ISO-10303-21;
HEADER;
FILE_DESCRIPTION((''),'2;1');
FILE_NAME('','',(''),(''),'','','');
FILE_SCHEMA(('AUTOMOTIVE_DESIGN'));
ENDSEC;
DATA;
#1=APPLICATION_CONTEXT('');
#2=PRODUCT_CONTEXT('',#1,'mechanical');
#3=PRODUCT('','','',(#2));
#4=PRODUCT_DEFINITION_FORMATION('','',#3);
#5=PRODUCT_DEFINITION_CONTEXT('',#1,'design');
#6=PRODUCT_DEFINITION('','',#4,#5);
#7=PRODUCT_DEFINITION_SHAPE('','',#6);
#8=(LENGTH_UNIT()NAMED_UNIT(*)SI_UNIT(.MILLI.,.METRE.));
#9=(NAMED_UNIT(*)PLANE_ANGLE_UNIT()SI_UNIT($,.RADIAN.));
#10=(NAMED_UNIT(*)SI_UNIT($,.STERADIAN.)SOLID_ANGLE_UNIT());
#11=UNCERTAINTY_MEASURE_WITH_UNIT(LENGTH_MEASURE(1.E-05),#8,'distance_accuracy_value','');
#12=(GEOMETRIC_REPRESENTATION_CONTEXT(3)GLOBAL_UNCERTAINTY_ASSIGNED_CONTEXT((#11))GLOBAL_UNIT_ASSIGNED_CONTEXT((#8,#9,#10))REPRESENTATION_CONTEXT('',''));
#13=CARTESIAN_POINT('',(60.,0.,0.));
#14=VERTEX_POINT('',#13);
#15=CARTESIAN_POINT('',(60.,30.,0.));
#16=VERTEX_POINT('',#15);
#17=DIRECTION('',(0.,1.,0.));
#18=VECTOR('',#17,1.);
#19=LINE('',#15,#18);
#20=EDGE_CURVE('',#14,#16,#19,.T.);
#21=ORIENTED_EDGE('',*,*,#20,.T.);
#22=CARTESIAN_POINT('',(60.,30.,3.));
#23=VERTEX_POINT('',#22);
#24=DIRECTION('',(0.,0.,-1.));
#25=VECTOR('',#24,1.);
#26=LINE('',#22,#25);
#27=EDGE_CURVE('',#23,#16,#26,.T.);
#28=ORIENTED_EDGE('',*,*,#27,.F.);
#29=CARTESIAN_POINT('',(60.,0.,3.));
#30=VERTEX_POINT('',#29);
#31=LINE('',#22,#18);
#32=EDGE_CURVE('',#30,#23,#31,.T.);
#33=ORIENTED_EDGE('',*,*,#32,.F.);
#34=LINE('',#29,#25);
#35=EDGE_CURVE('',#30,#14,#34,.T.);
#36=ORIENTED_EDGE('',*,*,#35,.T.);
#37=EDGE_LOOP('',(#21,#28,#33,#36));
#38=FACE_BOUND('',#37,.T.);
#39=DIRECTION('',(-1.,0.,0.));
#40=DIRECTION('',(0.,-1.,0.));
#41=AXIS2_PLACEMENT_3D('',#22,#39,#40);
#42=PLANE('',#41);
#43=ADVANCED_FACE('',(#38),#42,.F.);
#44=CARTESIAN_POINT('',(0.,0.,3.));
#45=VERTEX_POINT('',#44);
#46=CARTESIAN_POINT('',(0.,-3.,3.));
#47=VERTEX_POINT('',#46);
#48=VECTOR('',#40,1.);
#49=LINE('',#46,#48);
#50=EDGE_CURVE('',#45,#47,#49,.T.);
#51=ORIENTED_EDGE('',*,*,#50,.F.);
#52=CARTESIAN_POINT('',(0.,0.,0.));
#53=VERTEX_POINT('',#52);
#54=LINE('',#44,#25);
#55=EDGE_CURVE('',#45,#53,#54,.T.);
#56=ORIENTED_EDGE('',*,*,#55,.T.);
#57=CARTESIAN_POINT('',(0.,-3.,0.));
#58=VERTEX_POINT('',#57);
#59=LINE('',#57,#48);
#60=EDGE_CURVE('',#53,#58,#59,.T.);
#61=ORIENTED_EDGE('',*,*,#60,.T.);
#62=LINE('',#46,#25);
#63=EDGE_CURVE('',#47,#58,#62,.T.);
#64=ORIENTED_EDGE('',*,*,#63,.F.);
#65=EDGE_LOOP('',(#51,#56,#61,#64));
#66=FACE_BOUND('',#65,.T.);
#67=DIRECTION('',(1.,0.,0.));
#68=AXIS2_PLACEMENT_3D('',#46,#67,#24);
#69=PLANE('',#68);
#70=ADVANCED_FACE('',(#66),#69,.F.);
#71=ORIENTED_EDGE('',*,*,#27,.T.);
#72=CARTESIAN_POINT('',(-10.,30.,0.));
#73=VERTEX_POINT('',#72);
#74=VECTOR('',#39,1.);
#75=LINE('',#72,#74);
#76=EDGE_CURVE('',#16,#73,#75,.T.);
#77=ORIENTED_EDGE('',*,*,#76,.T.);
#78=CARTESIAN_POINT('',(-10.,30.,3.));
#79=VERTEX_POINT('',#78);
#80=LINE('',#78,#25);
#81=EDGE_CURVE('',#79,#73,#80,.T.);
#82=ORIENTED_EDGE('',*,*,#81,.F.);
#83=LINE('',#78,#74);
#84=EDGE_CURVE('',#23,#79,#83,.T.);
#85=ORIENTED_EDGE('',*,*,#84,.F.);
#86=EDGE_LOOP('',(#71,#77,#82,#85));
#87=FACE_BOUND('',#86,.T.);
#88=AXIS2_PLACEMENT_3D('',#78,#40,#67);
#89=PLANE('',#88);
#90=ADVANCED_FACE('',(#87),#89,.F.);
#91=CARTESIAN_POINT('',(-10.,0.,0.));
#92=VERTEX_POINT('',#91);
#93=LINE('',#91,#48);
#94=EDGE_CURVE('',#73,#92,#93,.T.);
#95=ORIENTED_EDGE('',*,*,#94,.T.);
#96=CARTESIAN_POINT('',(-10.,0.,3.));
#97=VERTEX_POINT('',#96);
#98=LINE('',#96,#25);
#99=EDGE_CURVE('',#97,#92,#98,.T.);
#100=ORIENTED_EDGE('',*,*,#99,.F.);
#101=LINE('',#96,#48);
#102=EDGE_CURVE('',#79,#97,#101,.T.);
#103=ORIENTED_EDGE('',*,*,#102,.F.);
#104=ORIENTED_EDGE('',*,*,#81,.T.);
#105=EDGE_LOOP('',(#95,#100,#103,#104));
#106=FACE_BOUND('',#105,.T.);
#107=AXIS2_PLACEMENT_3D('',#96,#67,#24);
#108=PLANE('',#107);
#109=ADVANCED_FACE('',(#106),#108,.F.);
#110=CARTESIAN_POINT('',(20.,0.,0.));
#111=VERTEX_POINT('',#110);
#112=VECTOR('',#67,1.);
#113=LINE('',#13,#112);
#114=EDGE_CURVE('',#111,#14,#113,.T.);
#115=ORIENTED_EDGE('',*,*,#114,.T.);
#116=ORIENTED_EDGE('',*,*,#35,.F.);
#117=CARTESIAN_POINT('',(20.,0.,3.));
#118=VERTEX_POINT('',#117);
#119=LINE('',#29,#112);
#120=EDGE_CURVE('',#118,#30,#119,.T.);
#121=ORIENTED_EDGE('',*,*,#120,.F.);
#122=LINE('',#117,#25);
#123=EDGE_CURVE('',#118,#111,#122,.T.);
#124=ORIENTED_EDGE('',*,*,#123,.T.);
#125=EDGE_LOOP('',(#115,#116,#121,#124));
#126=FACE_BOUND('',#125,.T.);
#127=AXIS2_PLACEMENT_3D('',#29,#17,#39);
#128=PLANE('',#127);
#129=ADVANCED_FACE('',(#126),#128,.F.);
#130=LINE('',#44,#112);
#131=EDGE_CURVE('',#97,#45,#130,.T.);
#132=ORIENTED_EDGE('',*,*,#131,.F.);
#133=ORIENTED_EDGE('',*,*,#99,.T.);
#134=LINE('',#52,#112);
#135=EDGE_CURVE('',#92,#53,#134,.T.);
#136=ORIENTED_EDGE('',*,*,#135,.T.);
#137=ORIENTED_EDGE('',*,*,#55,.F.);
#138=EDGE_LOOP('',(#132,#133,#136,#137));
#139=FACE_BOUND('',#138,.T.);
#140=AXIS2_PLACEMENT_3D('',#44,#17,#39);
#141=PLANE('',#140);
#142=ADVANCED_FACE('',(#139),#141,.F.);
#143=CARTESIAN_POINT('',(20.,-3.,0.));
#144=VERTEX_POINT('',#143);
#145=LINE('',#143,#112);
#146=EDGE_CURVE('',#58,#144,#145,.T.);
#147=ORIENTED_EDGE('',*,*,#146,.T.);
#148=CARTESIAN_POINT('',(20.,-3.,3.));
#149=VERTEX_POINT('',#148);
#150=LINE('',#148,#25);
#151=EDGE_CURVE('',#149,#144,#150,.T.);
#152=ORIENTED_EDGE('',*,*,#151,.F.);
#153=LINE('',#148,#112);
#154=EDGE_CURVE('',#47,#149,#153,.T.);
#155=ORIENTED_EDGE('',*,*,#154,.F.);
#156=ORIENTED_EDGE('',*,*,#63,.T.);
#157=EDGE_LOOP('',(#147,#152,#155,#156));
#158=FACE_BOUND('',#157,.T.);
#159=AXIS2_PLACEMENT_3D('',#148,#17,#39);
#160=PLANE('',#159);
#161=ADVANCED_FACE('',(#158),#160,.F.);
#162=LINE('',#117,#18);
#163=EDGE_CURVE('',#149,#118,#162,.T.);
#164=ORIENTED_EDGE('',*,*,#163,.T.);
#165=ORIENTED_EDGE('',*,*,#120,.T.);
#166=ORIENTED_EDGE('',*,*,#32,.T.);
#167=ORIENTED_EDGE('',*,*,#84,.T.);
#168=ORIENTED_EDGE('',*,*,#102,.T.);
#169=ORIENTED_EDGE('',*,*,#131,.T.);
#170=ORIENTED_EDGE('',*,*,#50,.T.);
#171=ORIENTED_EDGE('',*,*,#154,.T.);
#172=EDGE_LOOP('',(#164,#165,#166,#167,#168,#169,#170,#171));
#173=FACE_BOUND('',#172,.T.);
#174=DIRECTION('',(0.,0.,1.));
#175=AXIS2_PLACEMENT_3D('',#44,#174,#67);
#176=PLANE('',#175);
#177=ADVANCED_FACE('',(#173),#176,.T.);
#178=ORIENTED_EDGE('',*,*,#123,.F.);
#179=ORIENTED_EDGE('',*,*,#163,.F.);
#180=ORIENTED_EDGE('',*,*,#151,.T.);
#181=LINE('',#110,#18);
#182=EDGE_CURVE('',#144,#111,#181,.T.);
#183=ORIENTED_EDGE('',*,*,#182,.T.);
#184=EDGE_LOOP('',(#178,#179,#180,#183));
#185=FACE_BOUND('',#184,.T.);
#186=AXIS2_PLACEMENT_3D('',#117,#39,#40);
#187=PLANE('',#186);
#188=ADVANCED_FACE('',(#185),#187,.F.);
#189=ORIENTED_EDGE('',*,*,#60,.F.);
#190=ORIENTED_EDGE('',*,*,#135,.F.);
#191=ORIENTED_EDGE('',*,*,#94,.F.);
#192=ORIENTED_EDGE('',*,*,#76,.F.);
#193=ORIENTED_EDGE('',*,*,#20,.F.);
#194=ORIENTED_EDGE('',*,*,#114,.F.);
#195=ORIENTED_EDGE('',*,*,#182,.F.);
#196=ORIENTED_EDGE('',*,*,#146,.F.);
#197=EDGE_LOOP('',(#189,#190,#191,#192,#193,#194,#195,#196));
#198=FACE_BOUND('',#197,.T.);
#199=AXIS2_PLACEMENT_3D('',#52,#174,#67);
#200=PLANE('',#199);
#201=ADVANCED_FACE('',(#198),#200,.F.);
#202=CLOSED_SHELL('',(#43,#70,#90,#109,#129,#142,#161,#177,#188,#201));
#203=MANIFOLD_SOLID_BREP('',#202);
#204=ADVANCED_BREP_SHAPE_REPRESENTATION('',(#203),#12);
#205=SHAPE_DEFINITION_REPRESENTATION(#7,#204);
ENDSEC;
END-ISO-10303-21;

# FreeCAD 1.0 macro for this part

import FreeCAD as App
import Part
import Sketcher
from FreeCAD import Vector

doc = App.newDocument("Part")
body = doc.addObject("PartDesign::Body", "Body")

sketch1 = doc.addObject("Sketcher::SketchObject", "Sketch")
body.addObject(sketch1)
sketch1.AttachmentSupport = (doc.XY_Plane, [""])
sketch1.MapMode = "FlatFace"
sketch1.addGeometry([
    Part.LineSegment(Vector(-10, 0, 0), Vector(0, 0, 0)),
    Part.LineSegment(Vector(0, 0, 0), Vector(0, -3, 0)),
    Part.LineSegment(Vector(0, -3, 0), Vector(20, -3, 0)),
    Part.LineSegment(Vector(20, -3, 0), Vector(20, 0, 0)),
    Part.LineSegment(Vector(20, 0, 0), Vector(60, 0, 0)),
    Part.LineSegment(Vector(60, 0, 0), Vector(60, 30, 0)),
    Part.LineSegment(Vector(60, 30, 0), Vector(-10, 30, 0)),
    Part.LineSegment(Vector(-10, 30, 0), Vector(-10, 0, 0)),
], False)
sketch1.addConstraint([
    Sketcher.Constraint("Coincident", 0, 2, 1, 1),
    Sketcher.Constraint("Coincident", 1, 2, 2, 1),
    Sketcher.Constraint("Coincident", 2, 2, 3, 1),
    Sketcher.Constraint("Coincident", 3, 2, 4, 1),
    Sketcher.Constraint("Coincident", 4, 2, 5, 1),
    Sketcher.Constraint("Coincident", 5, 2, 6, 1),
    Sketcher.Constraint("Coincident", 6, 2, 7, 1),
    Sketcher.Constraint("Coincident", 7, 2, 0, 1),
    Sketcher.Constraint("Horizontal", 0),
    Sketcher.Constraint("Vertical", 1),
    Sketcher.Constraint("Horizontal", 2),
    Sketcher.Constraint("Vertical", 3),
    Sketcher.Constraint("Horizontal", 4),
    Sketcher.Constraint("Vertical", 5),
    Sketcher.Constraint("Horizontal", 6),
    Sketcher.Constraint("Vertical", 7),
    Sketcher.Constraint("Coincident", 0, 2, -1, 1),
    Sketcher.Constraint("PointOnObject", 3, 2, -1),
    Sketcher.Constraint("DistanceX", 0, 1, 0, 2, 10.0),
    Sketcher.Constraint("DistanceX", 2, 1, 2, 2, 20.0),
    Sketcher.Constraint("DistanceX", 4, 1, 4, 2, 40.0),
    Sketcher.Constraint("DistanceY", 1, 2, 1, 1, 3.0),
    Sketcher.Constraint("DistanceY", 5, 1, 5, 2, 30.0),
])
pad1 = doc.addObject("PartDesign::Pad", "Pad")
body.addObject(pad1)
pad1.Profile = sketch1
pad1.Length = 3

doc.recompute()
